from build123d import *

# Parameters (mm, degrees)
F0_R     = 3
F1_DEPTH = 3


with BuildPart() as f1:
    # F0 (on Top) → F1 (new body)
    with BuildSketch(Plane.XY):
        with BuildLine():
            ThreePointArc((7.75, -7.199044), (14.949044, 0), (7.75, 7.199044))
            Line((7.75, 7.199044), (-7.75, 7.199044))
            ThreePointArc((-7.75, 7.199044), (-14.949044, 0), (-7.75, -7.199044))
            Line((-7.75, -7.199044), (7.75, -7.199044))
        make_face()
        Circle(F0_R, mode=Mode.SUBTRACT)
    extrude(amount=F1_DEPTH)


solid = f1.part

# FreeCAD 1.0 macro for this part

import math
import FreeCAD as App
import Part
import Sketcher

V = App.Vector
Q = App.Units.Quantity

doc = App.newDocument("Part")
body = doc.addObject("PartDesign::Body", "Body")

sketch1 = doc.addObject("Sketcher::SketchObject", "Sketch")
body.addObject(sketch1)
sketch1.AttachmentSupport = (doc.XY_Plane, [""])
sketch1.MapMode = "FlatFace"
sketch1.addGeometry(Part.ArcOfCircle(Part.Circle(V(7.8, 0, 0), V(0, 0, 1), 7.2), math.radians(-90), math.radians(90)), False)
sketch1.addGeometry(Part.LineSegment(V(7.8, 7.2, 0), V(-7.8, 7.2, 0)), False)
sketch1.addGeometry(Part.ArcOfCircle(Part.Circle(V(-7.8, 0, 0), V(0, 0, 1), 7.2), math.radians(90), math.radians(270)), False)
sketch1.addGeometry(Part.LineSegment(V(-7.8, -7.2, 0), V(7.8, -7.2, 0)), False)
sketch1.addGeometry(Part.Circle(V(0, 0, 0), V(0, 0, 1), 3), False)
sketch1.addConstraint(Sketcher.Constraint("Tangent", 0, 2, 1, 1))
sketch1.addConstraint(Sketcher.Constraint("Tangent", 1, 2, 2, 1))
sketch1.addConstraint(Sketcher.Constraint("Tangent", 2, 2, 3, 1))
sketch1.addConstraint(Sketcher.Constraint("Tangent", 3, 2, 0, 1))
sketch1.addConstraint(Sketcher.Constraint("Horizontal", 1))
sketch1.addConstraint(Sketcher.Constraint("Horizontal", 3))
sketch1.addConstraint(Sketcher.Constraint("Coincident", 4, 3, -1, 1))
sketch1.addConstraint(Sketcher.Constraint("Symmetric", 0, 3, 2, 3, -1, 1))
sketch1.addConstraint(Sketcher.Constraint("Diameter", 4, Q("6 mm")))
sketch1.addConstraint(Sketcher.Constraint("DistanceX", 1, 2, 1, 1, Q("15.5 mm")))
sketch1.addConstraint(Sketcher.Constraint("Radius", 0, Q("7.199044 mm")))
pad1 = doc.addObject("PartDesign::Pad", "Pad")
body.addObject(pad1)
pad1.Profile = sketch1
pad1.Length = 3

doc.recompute()
